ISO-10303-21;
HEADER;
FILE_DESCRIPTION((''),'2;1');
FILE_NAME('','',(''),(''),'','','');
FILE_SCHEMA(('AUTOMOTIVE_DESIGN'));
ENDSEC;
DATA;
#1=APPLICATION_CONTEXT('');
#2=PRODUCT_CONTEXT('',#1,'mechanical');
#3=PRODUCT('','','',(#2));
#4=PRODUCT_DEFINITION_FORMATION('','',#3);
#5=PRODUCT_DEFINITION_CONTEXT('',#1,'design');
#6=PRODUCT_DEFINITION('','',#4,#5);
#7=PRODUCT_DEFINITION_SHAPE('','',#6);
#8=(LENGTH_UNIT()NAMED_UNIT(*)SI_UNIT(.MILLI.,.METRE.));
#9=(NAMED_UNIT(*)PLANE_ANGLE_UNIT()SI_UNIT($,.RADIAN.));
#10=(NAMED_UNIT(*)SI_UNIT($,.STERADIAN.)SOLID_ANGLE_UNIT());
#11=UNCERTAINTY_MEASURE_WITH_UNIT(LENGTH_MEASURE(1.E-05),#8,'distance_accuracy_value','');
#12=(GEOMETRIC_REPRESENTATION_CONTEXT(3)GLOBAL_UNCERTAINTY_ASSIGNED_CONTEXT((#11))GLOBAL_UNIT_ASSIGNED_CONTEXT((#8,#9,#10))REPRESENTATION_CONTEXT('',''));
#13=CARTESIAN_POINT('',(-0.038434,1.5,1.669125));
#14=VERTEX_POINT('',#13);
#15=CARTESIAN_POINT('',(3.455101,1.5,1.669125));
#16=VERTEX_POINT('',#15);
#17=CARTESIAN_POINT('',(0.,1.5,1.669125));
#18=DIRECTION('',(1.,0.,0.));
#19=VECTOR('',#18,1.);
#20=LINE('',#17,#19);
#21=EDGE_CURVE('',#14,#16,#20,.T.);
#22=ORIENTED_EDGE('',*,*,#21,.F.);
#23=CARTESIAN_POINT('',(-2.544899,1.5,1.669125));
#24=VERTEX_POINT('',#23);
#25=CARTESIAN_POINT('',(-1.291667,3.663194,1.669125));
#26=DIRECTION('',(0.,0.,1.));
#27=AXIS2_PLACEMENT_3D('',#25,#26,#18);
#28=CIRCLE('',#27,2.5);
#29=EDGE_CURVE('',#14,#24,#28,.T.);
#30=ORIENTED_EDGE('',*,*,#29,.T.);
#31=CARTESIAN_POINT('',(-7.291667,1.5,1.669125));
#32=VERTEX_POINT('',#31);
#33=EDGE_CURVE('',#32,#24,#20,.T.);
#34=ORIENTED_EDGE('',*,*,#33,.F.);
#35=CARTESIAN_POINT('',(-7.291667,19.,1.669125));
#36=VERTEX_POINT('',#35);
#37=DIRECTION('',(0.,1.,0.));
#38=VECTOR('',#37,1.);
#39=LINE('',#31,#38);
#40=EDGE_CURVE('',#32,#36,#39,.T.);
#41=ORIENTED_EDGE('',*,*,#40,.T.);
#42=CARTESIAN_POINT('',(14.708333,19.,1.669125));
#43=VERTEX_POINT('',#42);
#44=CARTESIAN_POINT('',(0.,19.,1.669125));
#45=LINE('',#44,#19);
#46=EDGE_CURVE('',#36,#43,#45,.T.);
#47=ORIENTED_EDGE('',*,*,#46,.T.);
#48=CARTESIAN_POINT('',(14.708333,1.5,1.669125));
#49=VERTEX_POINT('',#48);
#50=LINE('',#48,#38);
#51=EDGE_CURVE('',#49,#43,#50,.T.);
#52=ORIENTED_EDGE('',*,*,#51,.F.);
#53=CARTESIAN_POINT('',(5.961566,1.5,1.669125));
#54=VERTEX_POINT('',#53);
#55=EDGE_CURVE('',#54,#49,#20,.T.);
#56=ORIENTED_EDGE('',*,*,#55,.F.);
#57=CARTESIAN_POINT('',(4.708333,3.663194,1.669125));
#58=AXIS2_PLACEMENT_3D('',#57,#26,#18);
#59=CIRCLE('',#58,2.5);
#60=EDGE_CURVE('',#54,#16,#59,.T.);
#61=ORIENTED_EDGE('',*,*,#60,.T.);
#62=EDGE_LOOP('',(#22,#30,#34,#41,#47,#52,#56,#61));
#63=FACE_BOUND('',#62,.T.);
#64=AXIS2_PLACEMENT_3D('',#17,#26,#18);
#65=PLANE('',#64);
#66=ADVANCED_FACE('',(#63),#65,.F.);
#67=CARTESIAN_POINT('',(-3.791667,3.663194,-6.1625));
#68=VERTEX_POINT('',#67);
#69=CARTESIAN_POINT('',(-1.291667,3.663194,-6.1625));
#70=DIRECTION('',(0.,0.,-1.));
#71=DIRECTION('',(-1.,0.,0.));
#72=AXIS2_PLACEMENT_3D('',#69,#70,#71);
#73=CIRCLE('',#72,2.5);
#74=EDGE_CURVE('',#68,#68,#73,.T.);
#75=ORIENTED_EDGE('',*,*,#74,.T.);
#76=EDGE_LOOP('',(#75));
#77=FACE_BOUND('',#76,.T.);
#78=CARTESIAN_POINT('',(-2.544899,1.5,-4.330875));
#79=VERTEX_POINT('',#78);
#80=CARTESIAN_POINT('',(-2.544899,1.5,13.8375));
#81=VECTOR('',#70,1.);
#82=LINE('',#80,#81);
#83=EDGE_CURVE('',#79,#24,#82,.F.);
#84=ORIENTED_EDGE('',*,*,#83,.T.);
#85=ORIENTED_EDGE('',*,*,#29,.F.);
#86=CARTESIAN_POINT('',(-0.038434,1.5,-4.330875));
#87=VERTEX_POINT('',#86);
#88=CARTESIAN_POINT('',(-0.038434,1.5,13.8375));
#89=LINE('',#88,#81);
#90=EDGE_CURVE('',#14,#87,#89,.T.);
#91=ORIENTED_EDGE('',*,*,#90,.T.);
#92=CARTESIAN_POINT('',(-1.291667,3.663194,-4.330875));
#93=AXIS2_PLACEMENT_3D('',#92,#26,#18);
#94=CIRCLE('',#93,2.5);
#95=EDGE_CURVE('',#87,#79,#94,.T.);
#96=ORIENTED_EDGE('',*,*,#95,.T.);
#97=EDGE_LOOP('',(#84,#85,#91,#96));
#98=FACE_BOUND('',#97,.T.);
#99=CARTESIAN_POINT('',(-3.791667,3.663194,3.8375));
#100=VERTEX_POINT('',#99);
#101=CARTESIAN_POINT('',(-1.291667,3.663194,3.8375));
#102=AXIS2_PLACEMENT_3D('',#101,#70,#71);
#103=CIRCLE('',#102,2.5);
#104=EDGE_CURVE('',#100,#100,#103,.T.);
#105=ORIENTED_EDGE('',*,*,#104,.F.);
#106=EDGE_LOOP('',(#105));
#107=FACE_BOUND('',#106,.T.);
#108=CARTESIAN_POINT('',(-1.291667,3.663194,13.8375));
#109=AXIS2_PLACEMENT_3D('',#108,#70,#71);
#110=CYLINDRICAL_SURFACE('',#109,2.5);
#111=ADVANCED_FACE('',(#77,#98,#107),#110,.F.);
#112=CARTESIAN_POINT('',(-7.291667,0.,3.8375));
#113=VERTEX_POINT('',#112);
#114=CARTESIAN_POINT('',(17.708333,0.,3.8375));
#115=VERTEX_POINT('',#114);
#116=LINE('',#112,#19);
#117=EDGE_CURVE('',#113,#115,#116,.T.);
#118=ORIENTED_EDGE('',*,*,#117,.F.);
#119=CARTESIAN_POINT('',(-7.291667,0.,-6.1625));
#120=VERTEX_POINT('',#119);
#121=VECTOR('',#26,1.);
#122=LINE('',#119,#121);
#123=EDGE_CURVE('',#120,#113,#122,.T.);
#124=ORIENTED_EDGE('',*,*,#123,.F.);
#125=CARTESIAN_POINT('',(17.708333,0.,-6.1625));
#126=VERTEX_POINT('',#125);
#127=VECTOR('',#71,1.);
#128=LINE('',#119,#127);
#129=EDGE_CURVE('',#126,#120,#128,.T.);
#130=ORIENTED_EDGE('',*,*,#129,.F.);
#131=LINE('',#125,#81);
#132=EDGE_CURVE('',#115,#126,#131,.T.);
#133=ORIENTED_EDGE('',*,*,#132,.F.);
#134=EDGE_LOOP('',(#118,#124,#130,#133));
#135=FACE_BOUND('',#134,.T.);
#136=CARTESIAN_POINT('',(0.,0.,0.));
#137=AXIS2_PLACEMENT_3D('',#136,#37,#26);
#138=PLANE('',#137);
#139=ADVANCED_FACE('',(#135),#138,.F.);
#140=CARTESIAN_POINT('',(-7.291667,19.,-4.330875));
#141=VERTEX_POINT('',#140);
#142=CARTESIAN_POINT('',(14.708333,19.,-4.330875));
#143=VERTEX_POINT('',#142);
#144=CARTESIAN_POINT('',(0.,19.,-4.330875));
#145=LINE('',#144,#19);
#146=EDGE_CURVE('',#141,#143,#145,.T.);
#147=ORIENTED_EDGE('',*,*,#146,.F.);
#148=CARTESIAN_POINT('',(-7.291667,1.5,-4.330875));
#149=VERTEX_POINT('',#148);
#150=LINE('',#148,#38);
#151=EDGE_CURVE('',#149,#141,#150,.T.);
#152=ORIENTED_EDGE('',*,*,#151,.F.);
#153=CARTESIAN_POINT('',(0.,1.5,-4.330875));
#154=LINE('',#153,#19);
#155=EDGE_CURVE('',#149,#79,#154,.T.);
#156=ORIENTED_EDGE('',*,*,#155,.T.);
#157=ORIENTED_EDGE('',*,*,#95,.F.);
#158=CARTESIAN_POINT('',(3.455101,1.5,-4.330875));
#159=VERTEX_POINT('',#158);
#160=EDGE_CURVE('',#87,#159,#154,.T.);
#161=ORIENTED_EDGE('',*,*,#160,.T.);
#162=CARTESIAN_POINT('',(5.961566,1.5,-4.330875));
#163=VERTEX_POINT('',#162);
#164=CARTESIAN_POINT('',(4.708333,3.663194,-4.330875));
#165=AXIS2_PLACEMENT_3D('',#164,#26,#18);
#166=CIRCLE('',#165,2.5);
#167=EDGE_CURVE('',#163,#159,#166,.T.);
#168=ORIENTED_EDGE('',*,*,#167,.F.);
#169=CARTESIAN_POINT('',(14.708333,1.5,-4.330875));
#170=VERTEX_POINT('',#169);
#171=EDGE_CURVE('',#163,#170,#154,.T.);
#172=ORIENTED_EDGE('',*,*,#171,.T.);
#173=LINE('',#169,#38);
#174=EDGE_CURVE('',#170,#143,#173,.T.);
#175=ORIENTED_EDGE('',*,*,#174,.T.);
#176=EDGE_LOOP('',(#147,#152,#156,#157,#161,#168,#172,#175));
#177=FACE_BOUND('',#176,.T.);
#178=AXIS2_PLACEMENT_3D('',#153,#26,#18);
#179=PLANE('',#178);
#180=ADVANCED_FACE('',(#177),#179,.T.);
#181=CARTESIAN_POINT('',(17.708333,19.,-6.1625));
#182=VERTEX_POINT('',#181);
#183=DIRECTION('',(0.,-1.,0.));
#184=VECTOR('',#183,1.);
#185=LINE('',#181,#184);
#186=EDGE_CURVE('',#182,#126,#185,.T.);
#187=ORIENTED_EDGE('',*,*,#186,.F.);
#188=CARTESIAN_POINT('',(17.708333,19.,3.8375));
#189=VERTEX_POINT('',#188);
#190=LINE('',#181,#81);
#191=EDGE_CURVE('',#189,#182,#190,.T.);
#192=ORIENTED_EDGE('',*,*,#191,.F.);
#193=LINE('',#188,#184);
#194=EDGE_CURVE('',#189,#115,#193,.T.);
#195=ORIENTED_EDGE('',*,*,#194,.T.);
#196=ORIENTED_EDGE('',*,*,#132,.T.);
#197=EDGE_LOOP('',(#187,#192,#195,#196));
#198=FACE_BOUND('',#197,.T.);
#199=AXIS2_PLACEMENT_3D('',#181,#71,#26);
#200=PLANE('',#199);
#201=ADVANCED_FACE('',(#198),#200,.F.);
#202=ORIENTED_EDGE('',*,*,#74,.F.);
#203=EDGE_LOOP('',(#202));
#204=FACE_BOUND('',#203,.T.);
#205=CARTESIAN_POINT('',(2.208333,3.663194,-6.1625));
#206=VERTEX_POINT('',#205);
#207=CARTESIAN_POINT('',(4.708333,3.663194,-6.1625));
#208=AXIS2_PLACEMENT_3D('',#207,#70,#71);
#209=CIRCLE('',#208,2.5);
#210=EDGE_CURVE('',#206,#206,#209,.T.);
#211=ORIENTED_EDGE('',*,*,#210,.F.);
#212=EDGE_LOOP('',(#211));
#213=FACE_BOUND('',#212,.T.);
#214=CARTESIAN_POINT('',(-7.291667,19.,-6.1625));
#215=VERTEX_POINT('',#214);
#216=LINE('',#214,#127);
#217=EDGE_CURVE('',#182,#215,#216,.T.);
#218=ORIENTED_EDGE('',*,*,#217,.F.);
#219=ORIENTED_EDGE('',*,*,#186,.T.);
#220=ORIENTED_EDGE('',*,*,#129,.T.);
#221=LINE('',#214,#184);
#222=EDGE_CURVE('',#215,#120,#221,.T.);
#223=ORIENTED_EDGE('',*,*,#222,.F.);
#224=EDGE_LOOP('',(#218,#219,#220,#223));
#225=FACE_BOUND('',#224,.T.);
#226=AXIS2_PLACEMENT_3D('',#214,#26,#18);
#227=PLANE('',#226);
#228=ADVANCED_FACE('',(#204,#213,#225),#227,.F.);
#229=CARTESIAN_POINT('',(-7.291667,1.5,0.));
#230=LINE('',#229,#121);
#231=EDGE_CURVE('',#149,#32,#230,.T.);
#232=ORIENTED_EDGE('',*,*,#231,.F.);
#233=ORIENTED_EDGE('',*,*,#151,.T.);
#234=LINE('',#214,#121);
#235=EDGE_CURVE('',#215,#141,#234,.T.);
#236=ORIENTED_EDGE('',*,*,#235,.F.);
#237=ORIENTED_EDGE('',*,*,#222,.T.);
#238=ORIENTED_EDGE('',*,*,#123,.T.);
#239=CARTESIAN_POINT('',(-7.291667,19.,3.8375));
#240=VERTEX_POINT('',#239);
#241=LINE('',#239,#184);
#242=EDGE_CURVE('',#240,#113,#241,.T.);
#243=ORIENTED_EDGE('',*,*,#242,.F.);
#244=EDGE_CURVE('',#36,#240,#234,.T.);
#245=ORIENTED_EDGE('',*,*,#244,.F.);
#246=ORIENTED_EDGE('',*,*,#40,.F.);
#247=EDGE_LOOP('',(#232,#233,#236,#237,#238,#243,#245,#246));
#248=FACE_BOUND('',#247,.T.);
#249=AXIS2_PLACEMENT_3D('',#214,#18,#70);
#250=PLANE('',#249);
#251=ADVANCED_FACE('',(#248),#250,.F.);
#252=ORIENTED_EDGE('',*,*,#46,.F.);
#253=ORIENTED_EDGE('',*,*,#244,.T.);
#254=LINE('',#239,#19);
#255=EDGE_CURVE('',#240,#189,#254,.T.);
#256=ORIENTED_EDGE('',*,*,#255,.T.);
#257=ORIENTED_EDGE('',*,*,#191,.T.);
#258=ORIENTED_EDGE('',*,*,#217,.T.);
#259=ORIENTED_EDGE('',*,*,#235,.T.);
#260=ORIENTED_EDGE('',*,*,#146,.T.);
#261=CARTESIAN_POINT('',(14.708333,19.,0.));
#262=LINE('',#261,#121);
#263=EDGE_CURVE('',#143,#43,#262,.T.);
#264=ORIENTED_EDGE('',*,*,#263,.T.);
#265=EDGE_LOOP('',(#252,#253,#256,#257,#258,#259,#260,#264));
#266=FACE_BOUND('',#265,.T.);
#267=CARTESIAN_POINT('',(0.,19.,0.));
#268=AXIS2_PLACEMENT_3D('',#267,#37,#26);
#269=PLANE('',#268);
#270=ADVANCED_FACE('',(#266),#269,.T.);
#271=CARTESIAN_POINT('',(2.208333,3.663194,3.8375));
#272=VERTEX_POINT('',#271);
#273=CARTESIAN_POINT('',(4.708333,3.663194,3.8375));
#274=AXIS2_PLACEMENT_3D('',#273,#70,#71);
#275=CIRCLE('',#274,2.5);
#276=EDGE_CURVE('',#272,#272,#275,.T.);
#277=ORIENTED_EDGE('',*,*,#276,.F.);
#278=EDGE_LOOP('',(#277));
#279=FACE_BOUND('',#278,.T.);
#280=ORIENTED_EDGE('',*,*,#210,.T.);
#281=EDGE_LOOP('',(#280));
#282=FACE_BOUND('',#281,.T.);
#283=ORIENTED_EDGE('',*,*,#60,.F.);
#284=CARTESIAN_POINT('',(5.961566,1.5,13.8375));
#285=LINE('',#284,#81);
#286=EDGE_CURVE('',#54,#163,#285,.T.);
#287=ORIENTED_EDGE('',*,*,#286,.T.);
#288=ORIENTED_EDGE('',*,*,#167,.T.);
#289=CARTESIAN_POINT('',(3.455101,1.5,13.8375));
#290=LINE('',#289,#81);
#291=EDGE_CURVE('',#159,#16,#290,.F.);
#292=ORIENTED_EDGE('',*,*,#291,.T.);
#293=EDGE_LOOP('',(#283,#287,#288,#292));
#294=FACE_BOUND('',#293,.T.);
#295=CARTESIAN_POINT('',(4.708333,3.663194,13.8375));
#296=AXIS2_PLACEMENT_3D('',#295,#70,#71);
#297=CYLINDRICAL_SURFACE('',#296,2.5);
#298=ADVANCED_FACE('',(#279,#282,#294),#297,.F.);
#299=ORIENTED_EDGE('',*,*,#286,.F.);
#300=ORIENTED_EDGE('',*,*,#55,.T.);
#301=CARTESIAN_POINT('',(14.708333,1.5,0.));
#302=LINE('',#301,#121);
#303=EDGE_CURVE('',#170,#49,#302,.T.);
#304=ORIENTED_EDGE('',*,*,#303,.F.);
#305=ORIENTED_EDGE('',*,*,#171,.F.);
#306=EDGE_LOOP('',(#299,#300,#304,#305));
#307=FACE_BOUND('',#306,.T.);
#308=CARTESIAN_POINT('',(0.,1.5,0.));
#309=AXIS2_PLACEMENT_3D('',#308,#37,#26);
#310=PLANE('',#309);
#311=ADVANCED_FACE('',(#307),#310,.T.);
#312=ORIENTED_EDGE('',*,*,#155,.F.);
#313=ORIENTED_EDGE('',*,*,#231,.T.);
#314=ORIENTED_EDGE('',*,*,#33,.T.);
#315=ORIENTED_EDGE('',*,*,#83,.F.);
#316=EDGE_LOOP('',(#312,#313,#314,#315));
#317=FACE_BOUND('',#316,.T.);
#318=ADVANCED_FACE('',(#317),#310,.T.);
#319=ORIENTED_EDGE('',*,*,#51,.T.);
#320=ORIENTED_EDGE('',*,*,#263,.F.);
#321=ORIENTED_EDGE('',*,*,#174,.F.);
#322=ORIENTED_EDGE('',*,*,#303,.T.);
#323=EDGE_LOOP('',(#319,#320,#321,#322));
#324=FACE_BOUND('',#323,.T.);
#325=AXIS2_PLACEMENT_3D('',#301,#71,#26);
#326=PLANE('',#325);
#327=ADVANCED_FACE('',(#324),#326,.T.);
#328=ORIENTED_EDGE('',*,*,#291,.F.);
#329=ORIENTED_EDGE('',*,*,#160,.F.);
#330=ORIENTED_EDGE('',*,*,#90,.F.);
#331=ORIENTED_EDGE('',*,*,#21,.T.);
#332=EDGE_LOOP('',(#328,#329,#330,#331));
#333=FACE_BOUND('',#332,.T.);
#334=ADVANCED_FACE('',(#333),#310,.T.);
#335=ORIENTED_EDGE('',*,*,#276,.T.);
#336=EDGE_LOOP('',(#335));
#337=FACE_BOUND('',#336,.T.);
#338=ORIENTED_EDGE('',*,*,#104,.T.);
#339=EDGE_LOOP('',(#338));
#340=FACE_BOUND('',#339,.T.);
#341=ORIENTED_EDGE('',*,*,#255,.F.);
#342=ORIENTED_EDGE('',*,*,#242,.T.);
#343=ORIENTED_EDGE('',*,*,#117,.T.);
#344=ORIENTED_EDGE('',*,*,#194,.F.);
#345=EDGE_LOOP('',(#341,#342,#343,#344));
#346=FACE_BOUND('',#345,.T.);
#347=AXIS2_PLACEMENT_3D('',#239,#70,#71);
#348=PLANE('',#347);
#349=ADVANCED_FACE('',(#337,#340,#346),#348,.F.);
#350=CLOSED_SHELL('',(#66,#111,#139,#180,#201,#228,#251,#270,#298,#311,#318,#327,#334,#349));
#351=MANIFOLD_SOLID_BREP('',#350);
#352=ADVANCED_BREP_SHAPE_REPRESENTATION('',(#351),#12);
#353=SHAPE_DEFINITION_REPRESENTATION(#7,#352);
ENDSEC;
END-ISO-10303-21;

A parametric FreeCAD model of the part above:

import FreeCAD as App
import Part
import Sketcher

V = App.Vector
Q = App.Units.Quantity


def add_polygon(sketch, points):
    """Adds a closed chain of lines whose ends are joined by coincident constraints."""
    first, n = sketch.GeometryCount, len(points)
    for a, b in zip(points, points[1:] + points[:1]):
        sketch.addGeometry(Part.LineSegment(App.Vector(*a, 0), App.Vector(*b, 0)), False)
    for i in range(n):
        sketch.addConstraint(Sketcher.Constraint("Coincident", first + i, 2, first + (i + 1) % n, 1))

doc = App.newDocument("Part")
body = doc.addObject("PartDesign::Body", "Body")

sketch1 = doc.addObject("Sketcher::SketchObject", "Sketch")
body.addObject(sketch1)
sketch1.AttachmentSupport = (doc.XZ_Plane, [""])
sketch1.MapMode = "FlatFace"
add_polygon(sketch1, [(-7, -6), (-7, 4), (18, 4), (18, -6)])
sketch1.addConstraint(Sketcher.Constraint("Vertical", 0))
sketch1.addConstraint(Sketcher.Constraint("Horizontal", 1))
sketch1.addConstraint(Sketcher.Constraint("Vertical", 2))
sketch1.addConstraint(Sketcher.Constraint("Horizontal", 3))
sketch1.addConstraint(Sketcher.Constraint("DistanceX", 1, 1, 1, 2, Q("25 mm")))
sketch1.addConstraint(Sketcher.Constraint("DistanceY", 0, 1, 0, 2, Q("10 mm")))
sketch1.addConstraint(Sketcher.Constraint("DistanceY", -1, 1, 0, 2, Q("3.8375 mm")))
sketch1.addConstraint(Sketcher.Constraint("DistanceX", 0, 2, -1, 1, Q("7.291667 mm")))
pad1 = doc.addObject("PartDesign::Pad", "Pad")
body.addObject(pad1)
pad1.Profile = sketch1
pad1.Length = 19
pad1.Reversed = True

sketch2 = doc.addObject("Sketcher::SketchObject", "Sketch001")
body.addObject(sketch2)
sketch2.AttachmentSupport = (doc.XZ_Plane, [""])
sketch2.MapMode = "FlatFace"
sketch2.AttachmentOffset = App.Placement(V(0, 0, -19), App.Rotation())
add_polygon(sketch2, [(-7, -4), (-7, 2), (15, 2), (15, -4)])
sketch2.addConstraint(Sketcher.Constraint("Vertical", 0))
sketch2.addConstraint(Sketcher.Constraint("Horizontal", 1))
sketch2.addConstraint(Sketcher.Constraint("Vertical", 2))
sketch2.addConstraint(Sketcher.Constraint("Horizontal", 3))
sketch2.addConstraint(Sketcher.Constraint("DistanceX", 1, 1, 1, 2, Q("22 mm")))
sketch2.addConstraint(Sketcher.Constraint("DistanceY", 0, 1, 0, 2, Q("6 mm")))
sketch2.addConstraint(Sketcher.Constraint("DistanceX", 0, 2, -1, 1, Q("7.291667 mm")))
sketch2.addConstraint(Sketcher.Constraint("DistanceY", -1, 1, 0, 2, Q("1.669125 mm")))
pocket1 = doc.addObject("PartDesign::Pocket", "Pocket")
body.addObject(pocket1)
pocket1.Profile = sketch2
pocket1.Length = 17.5
pocket1.Reversed = True

sketch3 = doc.addObject("Sketcher::SketchObject", "Sketch002")
body.addObject(sketch3)
sketch3.AttachmentSupport = (doc.XY_Plane, [""])
sketch3.MapMode = "FlatFace"
sketch3.AttachmentOffset = App.Placement(V(0, 0, -6.1625), App.Rotation())
sketch3.addGeometry(Part.Circle(V(4.7, 3.7, 0), V(0, 0, 1), 2.5), False)
sketch3.addGeometry(Part.Circle(V(-1.3, 3.7, 0), V(0, 0, 1), 2.5), False)
sketch3.addConstraint(Sketcher.Constraint("Equal", 0, 1))
sketch3.addConstraint(Sketcher.Constraint("Horizontal", 0, 3, 1, 3))
sketch3.addConstraint(Sketcher.Constraint("Diameter", 0, Q("5 mm")))
sketch3.addConstraint(Sketcher.Constraint("DistanceX", 1, 3, 0, 3, Q("6 mm")))
sketch3.addConstraint(Sketcher.Constraint("DistanceX", -1, 1, 0, 3, Q("4.708333 mm")))
sketch3.addConstraint(Sketcher.Constraint("DistanceY", -1, 1, 0, 3, Q("3.663194 mm")))
pocket2 = doc.addObject("PartDesign::Pocket", "Pocket001")
body.addObject(pocket2)
pocket2.Profile = sketch3
pocket2.Length = 20
pocket2.Reversed = True

doc.recompute()
